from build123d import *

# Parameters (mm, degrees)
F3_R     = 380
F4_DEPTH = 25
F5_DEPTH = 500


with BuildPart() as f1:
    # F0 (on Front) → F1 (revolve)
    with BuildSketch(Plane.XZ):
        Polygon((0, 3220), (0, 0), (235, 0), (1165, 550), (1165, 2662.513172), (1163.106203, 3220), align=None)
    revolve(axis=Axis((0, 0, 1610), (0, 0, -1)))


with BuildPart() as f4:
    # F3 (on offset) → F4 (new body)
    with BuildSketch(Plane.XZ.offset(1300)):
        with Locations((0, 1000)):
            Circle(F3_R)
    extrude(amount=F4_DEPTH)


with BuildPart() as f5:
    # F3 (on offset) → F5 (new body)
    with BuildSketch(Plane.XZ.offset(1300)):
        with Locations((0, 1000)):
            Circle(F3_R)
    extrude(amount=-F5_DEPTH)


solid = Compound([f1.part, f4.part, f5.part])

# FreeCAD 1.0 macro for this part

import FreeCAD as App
import Part
import Sketcher

doc = App.newDocument("Part")
params = doc.addObject("Spreadsheet::Sheet", "Params")
for row, (alias, value) in enumerate([
    ("sketch1_width", "235 mm"),
    ("sketch1_height", "3220 mm"),
    ("revolution_angle", "360 deg"),
    ("sketch2_diameter", "760 mm"),
    ("pad1_length", "25 mm"),
    ("sketch3_diameter", "760 mm"),
    ("pad2_length", "500 mm"),
], start=1):
    params.set(f"A{row}", alias)
    params.set(f"B{row}", "=" + value)
    params.setAlias(f"B{row}", alias)

body = doc.addObject("PartDesign::Body", "Body")

sketch1 = body.newObject("Sketcher::SketchObject", "Sketch")
sketch1.AttachmentSupport = (doc.getObject("XZ_Plane"), [""])
sketch1.MapMode = "FlatFace"
sketch1.addGeometry([
    Part.LineSegment(App.Vector(0, 3220, 0), App.Vector(0, 0, 0)),
    Part.LineSegment(App.Vector(0, 0, 0), App.Vector(235, 0, 0)),
    Part.LineSegment(App.Vector(235, 0, 0), App.Vector(1165, 550, 0)),
    Part.LineSegment(App.Vector(1165, 550, 0), App.Vector(1165, 2663, 0)),
    Part.LineSegment(App.Vector(1165, 2663, 0), App.Vector(1163, 3220, 0)),
    Part.LineSegment(App.Vector(1163, 3220, 0), App.Vector(0, 3220, 0)),
], False)
sketch1.addConstraint([
    Sketcher.Constraint("Coincident", 0, 2, 1, 1),
    Sketcher.Constraint("Coincident", 1, 2, 2, 1),
    Sketcher.Constraint("Coincident", 2, 2, 3, 1),
    Sketcher.Constraint("Coincident", 3, 2, 4, 1),
    Sketcher.Constraint("Coincident", 4, 2, 5, 1),
    Sketcher.Constraint("Coincident", 5, 2, 0, 1),
    Sketcher.Constraint("Vertical", 0),
    Sketcher.Constraint("Horizontal", 1),
    Sketcher.Constraint("Vertical", 3),
    Sketcher.Constraint("Horizontal", 5),
    Sketcher.Constraint("Coincident", 0, 2, -1, 1),
    Sketcher.Constraint("DistanceX", 1, 1, 1, 2, 235.0),
    Sketcher.Constraint("DistanceY", 0, 2, 0, 1, 3220.0),
    Sketcher.Constraint("DistanceX", -1, 1, 2, 2, 1165.0),
    Sketcher.Constraint("DistanceY", -1, 1, 2, 2, 550.0),
    Sketcher.Constraint("DistanceY", 3, 1, 3, 2, 2112.513172),
    Sketcher.Constraint("DistanceX", 5, 2, 5, 1, 1163.106203),
])
sketch1.setExpression("Constraints[11]", "Params.sketch1_width")
sketch1.setExpression("Constraints[12]", "Params.sketch1_height")
revolution = body.newObject("PartDesign::Revolution", "Revolution")
revolution.Profile = sketch1
revolution.ReferenceAxis = (sketch1, ["V_Axis"])
revolution.setExpression("Angle", "Params.revolution_angle")
body2 = doc.addObject("PartDesign::Body", "Body001")

sketch2 = body2.newObject("Sketcher::SketchObject", "Sketch001")
sketch2.AttachmentSupport = (doc.getObject("XZ_Plane001"), [""])
sketch2.MapMode = "FlatFace"
sketch2.AttachmentOffset = App.Placement(App.Vector(0, 0, 1300), App.Rotation())
sketch2.addGeometry(Part.Circle(App.Vector(0, 1000, 0), App.Vector(0, 0, 1), 380), False)
sketch2.addConstraint([
    Sketcher.Constraint("PointOnObject", 0, 3, -2),
    Sketcher.Constraint("Diameter", 0, 760.0),
    Sketcher.Constraint("DistanceY", -1, 1, 0, 3, 1000.0),
])
sketch2.setExpression("Constraints[1]", "Params.sketch2_diameter")
pad1 = body2.newObject("PartDesign::Pad", "Pad")
pad1.Profile = sketch2
pad1.setExpression("Length", "Params.pad1_length")
body3 = doc.addObject("PartDesign::Body", "Body002")

sketch3 = body3.newObject("Sketcher::SketchObject", "Sketch002")
sketch3.AttachmentSupport = (doc.getObject("XZ_Plane002"), [""])
sketch3.MapMode = "FlatFace"
sketch3.AttachmentOffset = App.Placement(App.Vector(0, 0, 1300), App.Rotation())
sketch3.addGeometry(Part.Circle(App.Vector(0, 1000, 0), App.Vector(0, 0, 1), 380), False)
sketch3.addConstraint([
    Sketcher.Constraint("PointOnObject", 0, 3, -2),
    Sketcher.Constraint("Diameter", 0, 760.0),
    Sketcher.Constraint("DistanceY", -1, 1, 0, 3, 1000.0),
])
sketch3.setExpression("Constraints[1]", "Params.sketch3_diameter")
pad2 = body3.newObject("PartDesign::Pad", "Pad001")
pad2.Profile = sketch3
pad2.setExpression("Length", "Params.pad2_length")
pad2.Reversed = True

doc.recompute()
